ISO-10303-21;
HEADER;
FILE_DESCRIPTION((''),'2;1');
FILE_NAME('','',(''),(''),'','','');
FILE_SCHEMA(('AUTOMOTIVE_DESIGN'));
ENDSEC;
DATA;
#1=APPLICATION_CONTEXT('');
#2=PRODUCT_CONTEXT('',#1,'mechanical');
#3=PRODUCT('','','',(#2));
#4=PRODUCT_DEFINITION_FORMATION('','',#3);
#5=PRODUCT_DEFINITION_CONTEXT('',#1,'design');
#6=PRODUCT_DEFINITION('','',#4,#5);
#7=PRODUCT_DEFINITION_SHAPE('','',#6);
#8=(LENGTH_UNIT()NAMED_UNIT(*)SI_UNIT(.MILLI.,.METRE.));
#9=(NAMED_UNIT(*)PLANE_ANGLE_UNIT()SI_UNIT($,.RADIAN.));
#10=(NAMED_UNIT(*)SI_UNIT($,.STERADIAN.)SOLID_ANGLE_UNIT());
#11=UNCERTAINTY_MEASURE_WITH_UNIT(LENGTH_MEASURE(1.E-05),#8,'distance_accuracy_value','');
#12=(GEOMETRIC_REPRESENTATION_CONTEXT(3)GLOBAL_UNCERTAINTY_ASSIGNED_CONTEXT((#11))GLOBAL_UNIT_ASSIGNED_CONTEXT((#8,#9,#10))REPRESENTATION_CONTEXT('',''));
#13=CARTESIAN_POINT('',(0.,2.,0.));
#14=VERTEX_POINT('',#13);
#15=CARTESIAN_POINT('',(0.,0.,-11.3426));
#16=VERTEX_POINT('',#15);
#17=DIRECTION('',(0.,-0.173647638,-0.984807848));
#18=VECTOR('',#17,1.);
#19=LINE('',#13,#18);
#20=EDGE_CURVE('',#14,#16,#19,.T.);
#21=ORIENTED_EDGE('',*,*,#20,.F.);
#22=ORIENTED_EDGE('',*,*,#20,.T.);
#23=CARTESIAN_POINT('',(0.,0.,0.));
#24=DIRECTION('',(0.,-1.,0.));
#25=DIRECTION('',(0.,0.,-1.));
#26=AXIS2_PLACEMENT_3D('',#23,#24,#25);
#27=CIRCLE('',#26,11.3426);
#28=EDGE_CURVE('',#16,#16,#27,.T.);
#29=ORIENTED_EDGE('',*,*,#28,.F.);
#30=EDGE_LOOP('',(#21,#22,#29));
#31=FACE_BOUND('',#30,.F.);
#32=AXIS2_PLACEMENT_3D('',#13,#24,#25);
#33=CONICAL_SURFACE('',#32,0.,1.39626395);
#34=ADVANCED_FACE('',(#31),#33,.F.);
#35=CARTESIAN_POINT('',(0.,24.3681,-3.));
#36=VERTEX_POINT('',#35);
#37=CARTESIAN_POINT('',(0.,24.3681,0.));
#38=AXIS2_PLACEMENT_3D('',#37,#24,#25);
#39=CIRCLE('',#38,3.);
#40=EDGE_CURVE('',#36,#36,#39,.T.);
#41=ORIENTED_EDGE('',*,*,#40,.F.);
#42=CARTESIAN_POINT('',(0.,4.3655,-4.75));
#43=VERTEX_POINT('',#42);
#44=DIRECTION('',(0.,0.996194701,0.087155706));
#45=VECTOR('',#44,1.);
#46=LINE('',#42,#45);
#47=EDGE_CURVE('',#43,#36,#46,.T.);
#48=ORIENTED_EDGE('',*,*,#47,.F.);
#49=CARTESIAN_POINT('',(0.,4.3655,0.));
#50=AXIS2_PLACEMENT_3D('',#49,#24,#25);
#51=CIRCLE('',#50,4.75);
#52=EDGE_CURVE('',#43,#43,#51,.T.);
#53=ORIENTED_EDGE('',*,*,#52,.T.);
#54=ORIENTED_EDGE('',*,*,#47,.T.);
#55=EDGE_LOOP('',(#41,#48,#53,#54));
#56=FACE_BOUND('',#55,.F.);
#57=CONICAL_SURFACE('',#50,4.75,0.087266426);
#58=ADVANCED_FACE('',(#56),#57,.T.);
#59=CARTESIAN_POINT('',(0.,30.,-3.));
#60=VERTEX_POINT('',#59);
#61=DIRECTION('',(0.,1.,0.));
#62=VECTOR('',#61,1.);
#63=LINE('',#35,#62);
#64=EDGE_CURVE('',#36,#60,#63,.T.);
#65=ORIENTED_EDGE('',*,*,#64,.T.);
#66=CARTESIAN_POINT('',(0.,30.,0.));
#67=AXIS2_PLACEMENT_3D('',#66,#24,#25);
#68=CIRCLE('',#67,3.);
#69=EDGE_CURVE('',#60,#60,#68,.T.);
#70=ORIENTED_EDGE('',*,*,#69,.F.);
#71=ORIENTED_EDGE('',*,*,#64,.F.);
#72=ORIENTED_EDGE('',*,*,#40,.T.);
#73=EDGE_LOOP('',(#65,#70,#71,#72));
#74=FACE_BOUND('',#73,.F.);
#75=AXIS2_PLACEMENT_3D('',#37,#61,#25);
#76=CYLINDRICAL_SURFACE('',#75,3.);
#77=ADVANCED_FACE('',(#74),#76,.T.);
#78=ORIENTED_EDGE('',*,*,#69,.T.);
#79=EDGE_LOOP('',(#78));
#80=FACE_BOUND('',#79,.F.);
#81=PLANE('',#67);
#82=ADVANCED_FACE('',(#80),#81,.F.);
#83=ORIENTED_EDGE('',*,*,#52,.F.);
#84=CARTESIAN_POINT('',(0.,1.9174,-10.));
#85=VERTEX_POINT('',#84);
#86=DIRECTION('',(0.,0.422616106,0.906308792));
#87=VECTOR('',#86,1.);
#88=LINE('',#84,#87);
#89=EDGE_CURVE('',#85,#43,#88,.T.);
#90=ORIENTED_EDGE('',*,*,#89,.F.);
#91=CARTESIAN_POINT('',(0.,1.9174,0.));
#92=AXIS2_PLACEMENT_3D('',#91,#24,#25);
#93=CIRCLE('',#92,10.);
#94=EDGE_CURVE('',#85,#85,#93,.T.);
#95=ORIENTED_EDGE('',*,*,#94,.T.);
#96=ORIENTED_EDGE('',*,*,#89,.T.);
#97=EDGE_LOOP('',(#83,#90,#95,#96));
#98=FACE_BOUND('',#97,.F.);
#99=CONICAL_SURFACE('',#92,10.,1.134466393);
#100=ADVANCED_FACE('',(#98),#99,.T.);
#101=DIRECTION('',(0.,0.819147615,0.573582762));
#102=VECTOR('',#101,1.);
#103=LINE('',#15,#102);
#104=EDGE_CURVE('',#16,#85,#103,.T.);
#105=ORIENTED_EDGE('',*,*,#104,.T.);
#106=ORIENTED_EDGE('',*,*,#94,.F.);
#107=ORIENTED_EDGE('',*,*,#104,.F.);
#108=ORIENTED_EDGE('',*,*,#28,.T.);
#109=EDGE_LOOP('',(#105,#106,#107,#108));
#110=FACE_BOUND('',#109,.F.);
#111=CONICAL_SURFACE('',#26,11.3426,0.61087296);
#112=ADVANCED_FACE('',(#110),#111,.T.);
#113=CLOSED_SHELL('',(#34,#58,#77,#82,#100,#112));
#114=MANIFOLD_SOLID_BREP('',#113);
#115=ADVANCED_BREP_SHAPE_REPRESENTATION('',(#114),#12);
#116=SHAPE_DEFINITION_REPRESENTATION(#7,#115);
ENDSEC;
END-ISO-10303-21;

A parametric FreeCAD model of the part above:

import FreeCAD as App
import Part
import Sketcher

V = App.Vector
Q = App.Units.Quantity


def add_polygon(sketch, points):
    """Adds a closed chain of lines whose ends are joined by coincident constraints."""
    first, n = sketch.GeometryCount, len(points)
    for a, b in zip(points, points[1:] + points[:1]):
        sketch.addGeometry(Part.LineSegment(App.Vector(*a, 0), App.Vector(*b, 0)), False)
    for i in range(n):
        sketch.addConstraint(Sketcher.Constraint("Coincident", first + i, 2, first + (i + 1) % n, 1))

doc = App.newDocument("Part")
body = doc.addObject("PartDesign::Body", "Body")

# Sketch on YZ plane
sketch1 = body.newObject("Sketcher::SketchObject", "Sketch")
sketch1.AttachmentSupport = (doc.getObject("YZ_Plane"), [""])
sketch1.MapMode = "FlatFace"
add_polygon(sketch1, [(2, 0), (0, -11.3426), (1.9174, -10), (4.3655, -4.75), (24.3681, -3), (30, -3), (30, 0)])  # lines 0-6
sketch1.addConstraint([
    Sketcher.Constraint("Horizontal", 4),
    Sketcher.Constraint("Vertical", 5),
    Sketcher.Constraint("Horizontal", 6),
    Sketcher.Constraint("PointOnObject", 0, 2, -2),
    Sketcher.Constraint("PointOnObject", 5, 2, -1),
    Sketcher.Constraint("Angle", 0, Q("-100 deg")),
    Sketcher.Constraint("Angle", 3, Q("5 deg")),
    Sketcher.Constraint("DistanceX", -1, 1, 4, 2, 30.0),
    Sketcher.Constraint("DistanceX", -1, 1, 6, 2, 2.0),
    Sketcher.Constraint("DistanceY", 5, 1, 5, 2, 3.0),
    Sketcher.Constraint("Angle", 1, Q("35.0004 deg")),
    Sketcher.Constraint("Angle", 2, Q("65.0001 deg")),
    Sketcher.Constraint("DistanceY", 1, 2, -1, 1, 10.0),
    Sketcher.Constraint("DistanceX", 4, 1, 4, 2, 5.632),
])
revolution = body.newObject("PartDesign::Revolution", "Revolution")
revolution.Profile = sketch1
revolution.ReferenceAxis = (sketch1, ["H_Axis"])
revolution.Angle = 360

doc.recompute()
